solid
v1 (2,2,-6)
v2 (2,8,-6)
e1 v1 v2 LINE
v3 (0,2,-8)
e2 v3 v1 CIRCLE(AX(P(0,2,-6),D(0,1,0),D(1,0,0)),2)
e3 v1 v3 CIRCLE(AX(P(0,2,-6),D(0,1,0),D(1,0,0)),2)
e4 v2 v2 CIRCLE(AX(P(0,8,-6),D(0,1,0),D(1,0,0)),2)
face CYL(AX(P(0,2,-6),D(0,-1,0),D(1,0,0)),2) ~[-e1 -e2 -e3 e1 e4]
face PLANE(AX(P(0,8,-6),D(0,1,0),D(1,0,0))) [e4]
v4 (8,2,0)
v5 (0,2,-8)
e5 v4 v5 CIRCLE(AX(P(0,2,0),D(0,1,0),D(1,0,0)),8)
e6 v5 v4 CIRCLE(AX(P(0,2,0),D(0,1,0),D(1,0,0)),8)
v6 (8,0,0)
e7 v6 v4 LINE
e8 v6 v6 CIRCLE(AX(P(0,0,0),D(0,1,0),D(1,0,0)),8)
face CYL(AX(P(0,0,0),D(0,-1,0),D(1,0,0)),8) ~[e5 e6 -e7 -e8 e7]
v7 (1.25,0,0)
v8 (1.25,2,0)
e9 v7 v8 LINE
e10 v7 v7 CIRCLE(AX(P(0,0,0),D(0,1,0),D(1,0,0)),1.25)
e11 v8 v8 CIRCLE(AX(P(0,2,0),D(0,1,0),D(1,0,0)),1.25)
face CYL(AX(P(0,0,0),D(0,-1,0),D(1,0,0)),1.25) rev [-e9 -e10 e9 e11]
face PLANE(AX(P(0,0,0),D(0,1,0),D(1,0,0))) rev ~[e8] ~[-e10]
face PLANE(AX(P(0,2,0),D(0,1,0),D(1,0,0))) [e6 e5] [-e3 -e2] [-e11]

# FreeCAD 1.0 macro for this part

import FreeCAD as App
import Part
import Sketcher

doc = App.newDocument("Part")
body = doc.addObject("PartDesign::Body", "Body")

# Sketch on XZ plane
sketch1 = body.newObject("Sketcher::SketchObject", "Sketch")
sketch1.AttachmentSupport = (doc.getObject("XZ_Plane"), [""])
sketch1.MapMode = "FlatFace"
sketch1.addGeometry(Part.Circle(App.Vector(0, 0, 0), App.Vector(0, 0, 1), 8), False)
sketch1.addGeometry(Part.Circle(App.Vector(0, 0, 0), App.Vector(0, 0, 1), 1.2), False)
sketch1.addConstraint(Sketcher.Constraint("Coincident", 0, 3, -1, 1))
sketch1.addConstraint(Sketcher.Constraint("Coincident", 1, 3, -1, 1))
sketch1.addConstraint(Sketcher.Constraint("Diameter", 0, 16.0))
sketch1.addConstraint(Sketcher.Constraint("Diameter", 1, 2.5))
pad1 = body.newObject("PartDesign::Pad", "Pad")
pad1.Profile = sketch1
pad1.Length = 2
pad1.Reversed = True

# Sketch on XZ plane
sketch2 = body.newObject("Sketcher::SketchObject", "Sketch001")
sketch2.AttachmentSupport = (doc.getObject("XZ_Plane"), [""])
sketch2.MapMode = "FlatFace"
sketch2.AttachmentOffset = App.Placement(App.Vector(0, 0, -2), App.Rotation())
sketch2.addGeometry(Part.Circle(App.Vector(0, -6, 0), App.Vector(0, 0, 1), 2), False)
sketch2.addConstraint(Sketcher.Constraint("PointOnObject", 0, 3, -2))
sketch2.addConstraint(Sketcher.Constraint("Diameter", 0, 4.0))
sketch2.addConstraint(Sketcher.Constraint("DistanceY", 0, 3, -1, 1, 6.0))
pad2 = body.newObject("PartDesign::Pad", "Pad001")
pad2.Profile = sketch2
pad2.Length = 6
pad2.Reversed = True

doc.recompute()
